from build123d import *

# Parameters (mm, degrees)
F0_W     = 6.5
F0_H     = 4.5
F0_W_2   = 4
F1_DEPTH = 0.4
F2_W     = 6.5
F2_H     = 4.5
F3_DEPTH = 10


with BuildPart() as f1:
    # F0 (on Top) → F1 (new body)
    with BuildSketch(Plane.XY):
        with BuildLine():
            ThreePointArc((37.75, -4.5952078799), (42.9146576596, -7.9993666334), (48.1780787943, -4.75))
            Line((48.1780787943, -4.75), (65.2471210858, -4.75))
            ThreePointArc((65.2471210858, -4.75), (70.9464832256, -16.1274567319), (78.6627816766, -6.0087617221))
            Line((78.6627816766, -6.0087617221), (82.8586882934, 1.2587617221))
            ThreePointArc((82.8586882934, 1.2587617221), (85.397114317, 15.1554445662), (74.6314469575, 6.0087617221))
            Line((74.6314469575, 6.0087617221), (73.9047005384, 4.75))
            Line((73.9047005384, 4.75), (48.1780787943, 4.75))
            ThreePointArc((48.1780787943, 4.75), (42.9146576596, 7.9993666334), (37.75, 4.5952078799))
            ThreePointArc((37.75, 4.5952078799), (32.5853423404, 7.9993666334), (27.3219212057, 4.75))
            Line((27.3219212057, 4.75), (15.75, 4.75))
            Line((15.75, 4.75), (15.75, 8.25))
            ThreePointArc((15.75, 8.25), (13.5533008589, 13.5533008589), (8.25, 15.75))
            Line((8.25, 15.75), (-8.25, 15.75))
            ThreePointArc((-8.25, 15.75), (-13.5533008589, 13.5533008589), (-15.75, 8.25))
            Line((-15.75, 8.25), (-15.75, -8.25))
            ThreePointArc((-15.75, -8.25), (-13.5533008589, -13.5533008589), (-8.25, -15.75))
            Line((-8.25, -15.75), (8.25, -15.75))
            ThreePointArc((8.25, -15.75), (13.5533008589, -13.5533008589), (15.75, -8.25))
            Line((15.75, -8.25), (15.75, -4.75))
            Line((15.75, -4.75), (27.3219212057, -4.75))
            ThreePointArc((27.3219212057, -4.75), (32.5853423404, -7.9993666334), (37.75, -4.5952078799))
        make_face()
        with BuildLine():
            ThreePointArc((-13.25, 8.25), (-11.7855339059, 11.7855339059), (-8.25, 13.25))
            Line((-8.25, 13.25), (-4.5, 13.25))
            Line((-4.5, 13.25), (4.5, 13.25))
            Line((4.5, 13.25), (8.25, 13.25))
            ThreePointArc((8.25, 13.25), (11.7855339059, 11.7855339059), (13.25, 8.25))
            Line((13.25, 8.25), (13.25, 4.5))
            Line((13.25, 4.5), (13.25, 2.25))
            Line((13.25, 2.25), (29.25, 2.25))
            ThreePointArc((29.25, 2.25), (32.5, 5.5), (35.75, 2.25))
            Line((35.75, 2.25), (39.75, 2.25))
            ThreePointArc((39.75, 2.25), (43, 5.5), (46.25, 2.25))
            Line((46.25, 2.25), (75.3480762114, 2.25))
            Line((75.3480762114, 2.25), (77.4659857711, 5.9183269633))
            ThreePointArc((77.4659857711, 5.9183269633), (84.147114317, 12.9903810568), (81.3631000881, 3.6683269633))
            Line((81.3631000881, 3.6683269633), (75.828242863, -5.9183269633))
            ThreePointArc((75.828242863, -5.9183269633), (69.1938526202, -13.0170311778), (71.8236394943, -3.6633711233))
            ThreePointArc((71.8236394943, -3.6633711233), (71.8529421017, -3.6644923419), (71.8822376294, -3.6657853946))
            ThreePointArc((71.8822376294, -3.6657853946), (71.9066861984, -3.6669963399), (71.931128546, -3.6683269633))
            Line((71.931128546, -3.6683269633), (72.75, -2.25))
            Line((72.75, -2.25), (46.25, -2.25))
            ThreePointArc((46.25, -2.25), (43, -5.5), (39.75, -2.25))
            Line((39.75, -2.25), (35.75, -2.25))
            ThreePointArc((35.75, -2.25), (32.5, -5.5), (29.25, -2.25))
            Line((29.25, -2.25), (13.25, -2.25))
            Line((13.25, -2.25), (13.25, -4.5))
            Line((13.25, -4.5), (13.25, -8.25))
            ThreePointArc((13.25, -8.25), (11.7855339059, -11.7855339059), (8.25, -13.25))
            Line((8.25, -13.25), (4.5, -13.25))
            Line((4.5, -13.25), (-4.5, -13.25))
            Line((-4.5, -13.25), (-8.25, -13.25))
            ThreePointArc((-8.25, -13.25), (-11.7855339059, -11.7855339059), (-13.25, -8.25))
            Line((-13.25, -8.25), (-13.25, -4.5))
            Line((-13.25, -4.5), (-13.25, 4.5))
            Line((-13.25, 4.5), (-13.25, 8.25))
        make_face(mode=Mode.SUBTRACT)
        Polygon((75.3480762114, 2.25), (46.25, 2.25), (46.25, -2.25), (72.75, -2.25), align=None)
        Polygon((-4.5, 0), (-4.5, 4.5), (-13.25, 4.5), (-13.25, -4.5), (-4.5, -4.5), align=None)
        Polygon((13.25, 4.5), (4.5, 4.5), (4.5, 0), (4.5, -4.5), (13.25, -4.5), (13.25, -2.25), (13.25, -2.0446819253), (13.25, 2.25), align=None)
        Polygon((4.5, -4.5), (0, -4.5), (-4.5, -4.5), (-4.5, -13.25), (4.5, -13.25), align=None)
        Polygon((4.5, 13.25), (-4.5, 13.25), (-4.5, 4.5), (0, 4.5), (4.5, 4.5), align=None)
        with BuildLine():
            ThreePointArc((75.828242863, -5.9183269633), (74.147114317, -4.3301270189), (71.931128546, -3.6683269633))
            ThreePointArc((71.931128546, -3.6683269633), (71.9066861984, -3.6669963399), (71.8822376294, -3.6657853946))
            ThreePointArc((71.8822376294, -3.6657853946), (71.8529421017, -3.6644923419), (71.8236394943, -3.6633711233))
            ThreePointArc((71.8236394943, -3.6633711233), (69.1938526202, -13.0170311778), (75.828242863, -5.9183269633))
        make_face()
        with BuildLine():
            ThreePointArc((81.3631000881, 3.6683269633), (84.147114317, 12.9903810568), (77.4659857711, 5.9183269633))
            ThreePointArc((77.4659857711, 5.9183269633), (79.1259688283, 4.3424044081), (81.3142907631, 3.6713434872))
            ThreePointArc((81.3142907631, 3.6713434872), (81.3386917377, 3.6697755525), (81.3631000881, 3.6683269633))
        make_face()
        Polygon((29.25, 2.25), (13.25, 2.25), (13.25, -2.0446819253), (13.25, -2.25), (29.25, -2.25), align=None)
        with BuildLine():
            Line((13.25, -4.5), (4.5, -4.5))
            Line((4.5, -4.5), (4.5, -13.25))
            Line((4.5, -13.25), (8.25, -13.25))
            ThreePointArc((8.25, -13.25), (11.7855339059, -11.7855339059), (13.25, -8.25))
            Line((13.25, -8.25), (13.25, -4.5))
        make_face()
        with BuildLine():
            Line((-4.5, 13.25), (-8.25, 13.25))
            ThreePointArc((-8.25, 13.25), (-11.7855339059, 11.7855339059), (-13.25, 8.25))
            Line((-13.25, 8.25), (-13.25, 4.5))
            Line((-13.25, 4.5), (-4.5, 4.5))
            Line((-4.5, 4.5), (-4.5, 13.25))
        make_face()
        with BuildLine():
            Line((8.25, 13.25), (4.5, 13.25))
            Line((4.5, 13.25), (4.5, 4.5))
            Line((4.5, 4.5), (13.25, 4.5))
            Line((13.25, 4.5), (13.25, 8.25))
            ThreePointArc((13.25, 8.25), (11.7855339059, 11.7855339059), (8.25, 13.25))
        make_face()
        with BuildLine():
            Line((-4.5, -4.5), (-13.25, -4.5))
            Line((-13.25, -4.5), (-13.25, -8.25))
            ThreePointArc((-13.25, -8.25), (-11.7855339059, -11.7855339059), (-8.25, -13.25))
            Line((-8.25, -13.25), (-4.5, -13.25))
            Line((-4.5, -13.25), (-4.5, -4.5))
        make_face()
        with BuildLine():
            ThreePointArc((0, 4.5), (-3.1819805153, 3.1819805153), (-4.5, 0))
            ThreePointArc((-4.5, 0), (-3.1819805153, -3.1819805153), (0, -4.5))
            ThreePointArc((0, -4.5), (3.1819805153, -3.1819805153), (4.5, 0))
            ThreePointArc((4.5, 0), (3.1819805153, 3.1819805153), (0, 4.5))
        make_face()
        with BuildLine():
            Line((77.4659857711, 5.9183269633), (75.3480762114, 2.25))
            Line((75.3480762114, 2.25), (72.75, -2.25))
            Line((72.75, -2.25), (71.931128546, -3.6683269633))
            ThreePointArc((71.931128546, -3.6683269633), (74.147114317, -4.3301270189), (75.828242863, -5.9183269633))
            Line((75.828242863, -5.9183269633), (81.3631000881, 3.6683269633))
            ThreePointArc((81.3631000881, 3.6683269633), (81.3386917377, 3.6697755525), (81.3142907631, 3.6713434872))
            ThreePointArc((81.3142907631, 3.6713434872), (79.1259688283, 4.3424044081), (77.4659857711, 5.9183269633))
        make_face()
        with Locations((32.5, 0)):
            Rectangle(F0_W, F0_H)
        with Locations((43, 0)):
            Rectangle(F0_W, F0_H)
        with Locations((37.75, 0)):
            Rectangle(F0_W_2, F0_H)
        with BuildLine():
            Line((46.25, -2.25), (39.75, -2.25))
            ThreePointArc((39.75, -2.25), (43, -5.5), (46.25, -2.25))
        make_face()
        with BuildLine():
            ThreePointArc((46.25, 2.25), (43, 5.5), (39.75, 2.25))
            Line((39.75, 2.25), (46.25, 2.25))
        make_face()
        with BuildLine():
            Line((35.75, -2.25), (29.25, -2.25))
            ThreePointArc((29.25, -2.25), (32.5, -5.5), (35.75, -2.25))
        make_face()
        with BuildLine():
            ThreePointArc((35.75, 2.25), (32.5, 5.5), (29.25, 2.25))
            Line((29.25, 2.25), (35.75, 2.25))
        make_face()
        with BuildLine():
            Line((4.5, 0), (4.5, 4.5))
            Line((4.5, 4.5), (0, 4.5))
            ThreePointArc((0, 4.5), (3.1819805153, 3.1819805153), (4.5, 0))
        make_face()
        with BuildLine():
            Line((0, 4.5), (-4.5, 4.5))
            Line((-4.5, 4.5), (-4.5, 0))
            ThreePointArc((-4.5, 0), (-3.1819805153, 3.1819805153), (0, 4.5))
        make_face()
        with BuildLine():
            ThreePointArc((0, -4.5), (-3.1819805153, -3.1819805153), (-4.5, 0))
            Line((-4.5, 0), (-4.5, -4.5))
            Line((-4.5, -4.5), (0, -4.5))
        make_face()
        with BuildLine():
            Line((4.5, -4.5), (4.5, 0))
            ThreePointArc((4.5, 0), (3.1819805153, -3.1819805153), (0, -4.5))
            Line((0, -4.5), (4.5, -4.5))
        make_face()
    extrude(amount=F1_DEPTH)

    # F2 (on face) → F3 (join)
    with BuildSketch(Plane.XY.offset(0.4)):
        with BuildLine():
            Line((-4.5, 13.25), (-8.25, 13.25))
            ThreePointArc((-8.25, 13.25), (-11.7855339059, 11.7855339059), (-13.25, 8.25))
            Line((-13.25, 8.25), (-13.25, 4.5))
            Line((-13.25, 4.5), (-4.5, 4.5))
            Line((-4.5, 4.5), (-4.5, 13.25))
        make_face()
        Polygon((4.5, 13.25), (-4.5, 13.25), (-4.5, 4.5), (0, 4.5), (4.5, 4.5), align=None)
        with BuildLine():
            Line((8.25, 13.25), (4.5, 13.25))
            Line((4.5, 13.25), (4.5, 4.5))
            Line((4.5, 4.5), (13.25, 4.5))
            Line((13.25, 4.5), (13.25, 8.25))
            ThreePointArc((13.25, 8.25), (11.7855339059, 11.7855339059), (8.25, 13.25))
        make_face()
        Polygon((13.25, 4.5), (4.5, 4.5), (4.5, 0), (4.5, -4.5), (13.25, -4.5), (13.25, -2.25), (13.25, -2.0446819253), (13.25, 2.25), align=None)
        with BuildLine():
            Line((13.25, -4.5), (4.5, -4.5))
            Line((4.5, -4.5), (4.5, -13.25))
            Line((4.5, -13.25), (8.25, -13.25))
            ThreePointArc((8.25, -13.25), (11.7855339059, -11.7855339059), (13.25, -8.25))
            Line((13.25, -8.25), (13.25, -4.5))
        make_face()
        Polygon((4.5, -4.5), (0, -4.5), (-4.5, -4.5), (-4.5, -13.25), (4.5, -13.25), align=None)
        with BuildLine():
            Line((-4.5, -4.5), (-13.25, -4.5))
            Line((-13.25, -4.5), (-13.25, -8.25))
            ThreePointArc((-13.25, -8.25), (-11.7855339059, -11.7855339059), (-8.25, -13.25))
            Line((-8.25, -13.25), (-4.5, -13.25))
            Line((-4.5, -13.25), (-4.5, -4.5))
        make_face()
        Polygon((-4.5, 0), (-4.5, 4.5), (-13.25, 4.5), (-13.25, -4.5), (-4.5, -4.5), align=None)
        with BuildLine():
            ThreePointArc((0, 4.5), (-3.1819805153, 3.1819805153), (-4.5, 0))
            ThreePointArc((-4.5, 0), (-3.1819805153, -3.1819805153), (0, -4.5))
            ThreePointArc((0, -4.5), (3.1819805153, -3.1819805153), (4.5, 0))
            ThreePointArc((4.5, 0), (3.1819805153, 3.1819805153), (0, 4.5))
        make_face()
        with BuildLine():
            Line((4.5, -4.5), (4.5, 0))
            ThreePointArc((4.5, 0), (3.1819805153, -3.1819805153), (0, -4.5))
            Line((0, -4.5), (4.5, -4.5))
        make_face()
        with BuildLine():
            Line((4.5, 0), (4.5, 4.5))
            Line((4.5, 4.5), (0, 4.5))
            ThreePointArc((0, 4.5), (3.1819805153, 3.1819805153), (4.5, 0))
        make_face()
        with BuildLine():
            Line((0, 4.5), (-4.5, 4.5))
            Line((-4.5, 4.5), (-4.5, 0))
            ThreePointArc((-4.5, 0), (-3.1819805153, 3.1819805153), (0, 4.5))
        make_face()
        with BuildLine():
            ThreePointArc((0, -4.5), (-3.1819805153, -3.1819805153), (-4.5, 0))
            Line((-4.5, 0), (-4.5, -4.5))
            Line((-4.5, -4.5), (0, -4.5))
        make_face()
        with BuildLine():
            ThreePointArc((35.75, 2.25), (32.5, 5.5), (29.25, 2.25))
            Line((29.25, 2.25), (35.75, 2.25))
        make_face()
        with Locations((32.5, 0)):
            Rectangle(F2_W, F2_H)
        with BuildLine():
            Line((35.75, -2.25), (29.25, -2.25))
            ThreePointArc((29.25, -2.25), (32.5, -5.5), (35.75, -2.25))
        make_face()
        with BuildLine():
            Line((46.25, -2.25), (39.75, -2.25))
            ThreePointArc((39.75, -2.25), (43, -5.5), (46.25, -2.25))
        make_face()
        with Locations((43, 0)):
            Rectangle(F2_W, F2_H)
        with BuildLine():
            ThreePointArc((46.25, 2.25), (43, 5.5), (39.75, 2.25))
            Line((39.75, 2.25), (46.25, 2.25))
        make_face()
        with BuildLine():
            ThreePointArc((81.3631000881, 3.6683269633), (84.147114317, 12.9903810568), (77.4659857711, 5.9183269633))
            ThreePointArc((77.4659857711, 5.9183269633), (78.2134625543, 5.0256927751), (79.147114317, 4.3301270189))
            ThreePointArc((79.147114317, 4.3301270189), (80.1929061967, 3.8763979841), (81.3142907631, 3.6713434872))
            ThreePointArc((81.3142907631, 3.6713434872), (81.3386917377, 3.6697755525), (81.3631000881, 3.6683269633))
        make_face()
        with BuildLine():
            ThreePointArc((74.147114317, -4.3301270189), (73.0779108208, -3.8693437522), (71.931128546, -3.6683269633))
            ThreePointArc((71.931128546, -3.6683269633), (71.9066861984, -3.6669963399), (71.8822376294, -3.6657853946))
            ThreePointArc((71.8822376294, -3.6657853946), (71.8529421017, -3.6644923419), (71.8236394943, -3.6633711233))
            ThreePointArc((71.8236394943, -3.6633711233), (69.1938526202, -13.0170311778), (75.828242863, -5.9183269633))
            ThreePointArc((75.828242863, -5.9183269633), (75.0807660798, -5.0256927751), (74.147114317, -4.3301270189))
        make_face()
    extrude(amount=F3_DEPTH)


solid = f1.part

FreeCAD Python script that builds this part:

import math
import FreeCAD as App
import Part
import Sketcher

V = App.Vector
Q = App.Units.Quantity

doc = App.newDocument("Part")
body = doc.addObject("PartDesign::Body", "Body")

sketch1 = body.newObject("Sketcher::SketchObject", "Sketch")
sketch1.AttachmentSupport = (doc.getObject("XY_Plane"), [""])
sketch1.MapMode = "FlatFace"
sketch1.addGeometry(Part.ArcOfCircle(Part.Circle(V(43, -2.2, 0), V(0, 0, 1), 5.8), math.radians(-156), math.radians(-26)), False)
sketch1.addGeometry(Part.LineSegment(V(48.2, -4.8, 0), V(65.2, -4.8, 0)), False)
sketch1.addGeometry(Part.ArcOfCircle(Part.Circle(V(71.6, -8.7, 0), V(0, 0, 1), 7.5), math.radians(149), math.radians(381)), False)
sketch1.addGeometry(Part.LineSegment(V(78.7, -6, 0), V(82.9, 1.3, 0)), False)
sketch1.addGeometry(Part.ArcOfCircle(Part.Circle(V(81.6, 8.7, 0), V(0, 0, 1), 7.5), math.radians(-81), math.radians(201)), False)
sketch1.addGeometry(Part.LineSegment(V(74.6, 6, 0), V(73.9, 4.8, 0)), False)
sketch1.addGeometry(Part.LineSegment(V(73.9, 4.8, 0), V(48.2, 4.8, 0)), False)
sketch1.addGeometry(Part.ArcOfCircle(Part.Circle(V(43, 2.2, 0), V(0, 0, 1), 5.8), math.radians(26), math.radians(156)), False)
sketch1.addGeometry(Part.ArcOfCircle(Part.Circle(V(32.5, 2.2, 0), V(0, 0, 1), 5.8), math.radians(24), math.radians(154)), False)
sketch1.addGeometry(Part.LineSegment(V(27.3, 4.8, 0), V(15.8, 4.8, 0)), False)
sketch1.addGeometry(Part.LineSegment(V(15.8, 4.8, 0), V(15.8, 8.2, 0)), False)
sketch1.addGeometry(Part.ArcOfCircle(Part.Circle(V(8.2, 8.2, 0), V(0, 0, 1), 7.5), math.radians(0), math.radians(90)), False)
sketch1.addGeometry(Part.LineSegment(V(8.2, 15.8, 0), V(-8.2, 15.8, 0)), False)
sketch1.addGeometry(Part.ArcOfCircle(Part.Circle(V(-8.2, 8.2, 0), V(0, 0, 1), 7.5), math.radians(90), math.radians(180)), False)
sketch1.addGeometry(Part.LineSegment(V(-15.8, 8.2, 0), V(-15.8, -8.2, 0)), False)
sketch1.addGeometry(Part.ArcOfCircle(Part.Circle(V(-8.2, -8.2, 0), V(0, 0, 1), 7.5), math.radians(180), math.radians(270)), False)
sketch1.addGeometry(Part.LineSegment(V(-8.2, -15.8, 0), V(8.2, -15.8, 0)), False)
sketch1.addGeometry(Part.ArcOfCircle(Part.Circle(V(8.2, -8.2, 0), V(0, 0, 1), 7.5), math.radians(-90), math.radians(0)), False)
sketch1.addGeometry(Part.LineSegment(V(15.8, -8.2, 0), V(15.8, -4.8, 0)), False)
sketch1.addGeometry(Part.LineSegment(V(15.8, -4.8, 0), V(27.3, -4.8, 0)), False)
sketch1.addGeometry(Part.ArcOfCircle(Part.Circle(V(32.5, -2.2, 0), V(0, 0, 1), 5.8), math.radians(-154), math.radians(-24)), False)
sketch1.addConstraint(Sketcher.Constraint("Coincident", 0, 2, 1, 1))
sketch1.addConstraint(Sketcher.Constraint("Coincident", 1, 2, 2, 1))
sketch1.addConstraint(Sketcher.Constraint("Coincident", 2, 2, 3, 1))
sketch1.addConstraint(Sketcher.Constraint("Coincident", 3, 2, 4, 1))
sketch1.addConstraint(Sketcher.Constraint("Coincident", 4, 2, 5, 1))
sketch1.addConstraint(Sketcher.Constraint("Coincident", 5, 2, 6, 1))
sketch1.addConstraint(Sketcher.Constraint("Coincident", 6, 2, 7, 1))
sketch1.addConstraint(Sketcher.Constraint("Coincident", 7, 2, 8, 1))
sketch1.addConstraint(Sketcher.Constraint("Coincident", 8, 2, 9, 1))
sketch1.addConstraint(Sketcher.Constraint("Coincident", 9, 2, 10, 1))
sketch1.addConstraint(Sketcher.Constraint("Tangent", 10, 2, 11, 1))
sketch1.addConstraint(Sketcher.Constraint("Tangent", 11, 2, 12, 1))
sketch1.addConstraint(Sketcher.Constraint("Tangent", 12, 2, 13, 1))
sketch1.addConstraint(Sketcher.Constraint("Tangent", 13, 2, 14, 1))
sketch1.addConstraint(Sketcher.Constraint("Tangent", 14, 2, 15, 1))
sketch1.addConstraint(Sketcher.Constraint("Tangent", 15, 2, 16, 1))
sketch1.addConstraint(Sketcher.Constraint("Tangent", 16, 2, 17, 1))
sketch1.addConstraint(Sketcher.Constraint("Tangent", 17, 2, 18, 1))
sketch1.addConstraint(Sketcher.Constraint("Coincident", 18, 2, 19, 1))
sketch1.addConstraint(Sketcher.Constraint("Coincident", 19, 2, 20, 1))
sketch1.addConstraint(Sketcher.Constraint("Coincident", 20, 2, 0, 1))
sketch1.addConstraint(Sketcher.Constraint("Horizontal", 1))
sketch1.addConstraint(Sketcher.Constraint("Horizontal", 6))
sketch1.addConstraint(Sketcher.Constraint("Horizontal", 9))
sketch1.addConstraint(Sketcher.Constraint("Vertical", 10))
sketch1.addConstraint(Sketcher.Constraint("Horizontal", 12))
sketch1.addConstraint(Sketcher.Constraint("Vertical", 14))
sketch1.addConstraint(Sketcher.Constraint("Horizontal", 16))
sketch1.addConstraint(Sketcher.Constraint("Vertical", 18))
sketch1.addConstraint(Sketcher.Constraint("Horizontal", 19))
sketch1.addConstraint(Sketcher.Constraint("Equal", 2, 4))
sketch1.addConstraint(Sketcher.Constraint("Equal", 0, 7))
sketch1.addConstraint(Sketcher.Constraint("Equal", 7, 8))
sketch1.addConstraint(Sketcher.Constraint("Equal", 4, 11))
sketch1.addConstraint(Sketcher.Constraint("Equal", 11, 13))
sketch1.addConstraint(Sketcher.Constraint("Equal", 13, 15))
sketch1.addConstraint(Sketcher.Constraint("Equal", 15, 17))
sketch1.addConstraint(Sketcher.Constraint("Equal", 8, 20))
sketch1.addConstraint(Sketcher.Constraint("Symmetric", 11, 3, 15, 3, -1, 1))
sketch1.addConstraint(Sketcher.Constraint("Symmetric", 0, 3, 7, 3, -1))
sketch1.addConstraint(Sketcher.Constraint("Symmetric", 8, 3, 20, 3, -1))
sketch1.addConstraint(Sketcher.Constraint("Symmetric", 9, 2, 18, 2, -1))
sketch1.addConstraint(Sketcher.Constraint("Parallel", 3, 5))
sketch1.addConstraint(Sketcher.Constraint("Horizontal", 7, 3, 8, 3))
sketch1.addConstraint(Sketcher.Constraint("Horizontal", 6, 2, 8, 2))
sketch1.addConstraint(Sketcher.Constraint("Horizontal", 1, 2, 18, 2))
sketch1.addConstraint(Sketcher.Constraint("Equal", 16, 14))
sketch1.addConstraint(Sketcher.Constraint("Radius", 2, 7.5))
sketch1.addConstraint(Sketcher.Constraint("Angle", 3, Q("60 deg")))
sketch1.addConstraint(Sketcher.Constraint("Radius", 0, 5.75))
sketch1.addConstraint(Sketcher.Constraint("DistanceX", 12, 2, 12, 1, 16.5))
sketch1.addConstraint(Sketcher.Constraint("DistanceY", 10, 1, 10, 2, 3.5))
sketch1.addConstraint(Sketcher.Constraint("DistanceX", -1, 1, 0, 3, 43.0))
sketch1.addConstraint(Sketcher.Constraint("DistanceX", 2, 3, 4, 3, 10.0))
sketch1.addConstraint(Sketcher.Constraint("DistanceY", 8, 3, 11, 3, 6.0))
sketch1.addConstraint(Sketcher.Constraint("DistanceX", -1, 1, 8, 3, 32.5))
sketch1.addConstraint(Sketcher.Constraint("DistanceY", 3, 2, 4, 2, 4.75))
sketch1.addConstraint(Sketcher.Constraint("DistanceX", 6, 2, 6, 1, 25.726622))
sketch1.addConstraint(Sketcher.Constraint("DistanceX", 1, 1, 1, 2, 17.069042))
sketch1.addConstraint(Sketcher.Constraint("DistanceX", -1, 1, 2, 2, 78.662782))
sketch1.addConstraint(Sketcher.Constraint("DistanceY", 2, 2, -1, 1, 6.008762))
pad1 = body.newObject("PartDesign::Pad", "Pad")
pad1.Profile = sketch1
pad1.Length = 0.4

sketch2 = body.newObject("Sketcher::SketchObject", "Sketch001")
sketch2.AttachmentSupport = (doc.getObject("XY_Plane"), [""])
sketch2.MapMode = "FlatFace"
sketch2.AttachmentOffset = App.Placement(V(0, 0, 0.4), App.Rotation())
sketch2.addGeometry(Part.ArcOfCircle(Part.Circle(V(-8.25, 8.25, 0), V(0, 0, 1), 5), math.radians(90), math.radians(180)), False)
sketch2.addGeometry(Part.LineSegment(V(-13.25, 8.25, 0), V(-13.25, -8.25, 0)), False)
sketch2.addGeometry(Part.ArcOfCircle(Part.Circle(V(-8.25, -8.25, 0), V(0, 0, 1), 5), math.radians(180), math.radians(270)), False)
sketch2.addGeometry(Part.LineSegment(V(-8.25, -13.25, 0), V(8.25, -13.25, 0)), False)
sketch2.addGeometry(Part.ArcOfCircle(Part.Circle(V(8.25, -8.25, 0), V(0, 0, 1), 5), math.radians(-90), math.radians(0)), False)
sketch2.addGeometry(Part.LineSegment(V(13.25, -8.25, 0), V(13.25, 8.25, 0)), False)
sketch2.addGeometry(Part.ArcOfCircle(Part.Circle(V(8.25, 8.25, 0), V(0, 0, 1), 5), math.radians(0), math.radians(90)), False)
sketch2.addGeometry(Part.LineSegment(V(8.25, 13.25, 0), V(-8.25, 13.25, 0)), False)
sketch2.addGeometry(Part.ArcOfCircle(Part.Circle(V(32.5, 2.25, 0), V(0, 0, 1), 3.25), math.radians(0), math.radians(180)), False)
sketch2.addGeometry(Part.LineSegment(V(29.25, 2.25, 0), V(29.25, -2.25, 0)), False)
sketch2.addGeometry(Part.ArcOfCircle(Part.Circle(V(32.5, -2.25, 0), V(0, 0, 1), 3.25), math.radians(180), math.radians(360)), False)
sketch2.addGeometry(Part.LineSegment(V(35.75, -2.25, 0), V(35.75, 2.25, 0)), False)
sketch2.addGeometry(Part.ArcOfCircle(Part.Circle(V(43, -2.25, 0), V(0, 0, 1), 3.25), math.radians(180), math.radians(360)), False)
sketch2.addGeometry(Part.LineSegment(V(46.25, -2.25, 0), V(46.25, 2.25, 0)), False)
sketch2.addGeometry(Part.ArcOfCircle(Part.Circle(V(43, 2.25, 0), V(0, 0, 1), 3.25), math.radians(0), math.radians(180)), False)
sketch2.addGeometry(Part.LineSegment(V(39.75, 2.25, 0), V(39.75, -2.25, 0)), False)
sketch2.addGeometry(Part.ArcOfCircle(Part.Circle(V(81.647, 8.66, 0), V(0, 0, 1), 5), math.radians(-93), math.radians(213)), False)
sketch2.addGeometry(Part.ArcOfCircle(Part.Circle(V(81.647, 8.66, 0), V(0, 0, 1), 5), math.radians(-147), math.radians(-120)), False)
sketch2.addGeometry(Part.ArcOfCircle(Part.Circle(V(81.647, 8.66, 0), V(0, 0, 1), 5), math.radians(-120), math.radians(-94)), False)
sketch2.addGeometry(Part.ArcOfCircle(Part.Circle(V(81.647, 8.66, 0), V(0, 0, 1), 5), math.radians(-93.82), math.radians(-93.26)), False)
sketch2.addGeometry(Part.ArcOfCircle(Part.Circle(V(71.647, -8.66, 0), V(0, 0, 1), 5), math.radians(60), math.radians(87)), False)
sketch2.addGeometry(Part.ArcOfCircle(Part.Circle(V(71.647, -8.66, 0), V(0, 0, 1), 5), math.radians(86.74), math.radians(87.3)), False)
sketch2.addGeometry(Part.ArcOfCircle(Part.Circle(V(71.647, -8.66, 0), V(0, 0, 1), 5), math.radians(87.3), math.radians(87.98)), False)
sketch2.addGeometry(Part.ArcOfCircle(Part.Circle(V(71.647, -8.66, 0), V(0, 0, 1), 5), math.radians(88), math.radians(393)), False)
sketch2.addGeometry(Part.ArcOfCircle(Part.Circle(V(71.647, -8.66, 0), V(0, 0, 1), 5), math.radians(33), math.radians(60)), False)
sketch2.addConstraint(Sketcher.Constraint("Tangent", 0, 2, 1, 1))
sketch2.addConstraint(Sketcher.Constraint("Tangent", 1, 2, 2, 1))
sketch2.addConstraint(Sketcher.Constraint("Tangent", 2, 2, 3, 1))
sketch2.addConstraint(Sketcher.Constraint("Tangent", 3, 2, 4, 1))
sketch2.addConstraint(Sketcher.Constraint("Tangent", 4, 2, 5, 1))
sketch2.addConstraint(Sketcher.Constraint("Tangent", 5, 2, 6, 1))
sketch2.addConstraint(Sketcher.Constraint("Tangent", 6, 2, 7, 1))
sketch2.addConstraint(Sketcher.Constraint("Tangent", 7, 2, 0, 1))
sketch2.addConstraint(Sketcher.Constraint("Tangent", 8, 2, 9, 1))
sketch2.addConstraint(Sketcher.Constraint("Tangent", 9, 2, 10, 1))
sketch2.addConstraint(Sketcher.Constraint("Tangent", 10, 2, 11, 1))
sketch2.addConstraint(Sketcher.Constraint("Tangent", 11, 2, 8, 1))
sketch2.addConstraint(Sketcher.Constraint("Tangent", 12, 2, 13, 1))
sketch2.addConstraint(Sketcher.Constraint("Tangent", 13, 2, 14, 1))
sketch2.addConstraint(Sketcher.Constraint("Tangent", 14, 2, 15, 1))
sketch2.addConstraint(Sketcher.Constraint("Tangent", 15, 2, 12, 1))
sketch2.addConstraint(Sketcher.Constraint("Tangent", 16, 2, 17, 1))
sketch2.addConstraint(Sketcher.Constraint("Tangent", 17, 2, 18, 1))
sketch2.addConstraint(Sketcher.Constraint("Tangent", 18, 2, 19, 1))
sketch2.addConstraint(Sketcher.Constraint("Tangent", 19, 2, 16, 1))
sketch2.addConstraint(Sketcher.Constraint("Tangent", 20, 2, 21, 1))
sketch2.addConstraint(Sketcher.Constraint("Tangent", 21, 2, 22, 1))
sketch2.addConstraint(Sketcher.Constraint("Tangent", 22, 2, 23, 1))
sketch2.addConstraint(Sketcher.Constraint("Tangent", 23, 2, 24, 1))
sketch2.addConstraint(Sketcher.Constraint("Tangent", 24, 2, 20, 1))
sketch2.addConstraint(Sketcher.Constraint("Vertical", 1))
sketch2.addConstraint(Sketcher.Constraint("Horizontal", 3))
sketch2.addConstraint(Sketcher.Constraint("Vertical", 5))
sketch2.addConstraint(Sketcher.Constraint("Horizontal", 7))
sketch2.addConstraint(Sketcher.Constraint("Vertical", 9))
sketch2.addConstraint(Sketcher.Constraint("Vertical", 11))
sketch2.addConstraint(Sketcher.Constraint("Vertical", 13))
sketch2.addConstraint(Sketcher.Constraint("Vertical", 15))
sketch2.addConstraint(Sketcher.Constraint("Coincident", 22, 3, 20, 3))
sketch2.addConstraint(Sketcher.Constraint("Equal", 0, 2))
sketch2.addConstraint(Sketcher.Constraint("Equal", 2, 4))
sketch2.addConstraint(Sketcher.Constraint("Equal", 4, 6))
sketch2.addConstraint(Sketcher.Constraint("Equal", 10, 12))
sketch2.addConstraint(Sketcher.Constraint("Equal", 6, 16))
sketch2.addConstraint(Sketcher.Constraint("Equal", 16, 17))
sketch2.addConstraint(Sketcher.Constraint("Equal", 19, 20))
sketch2.addConstraint(Sketcher.Constraint("Symmetric", 0, 3, 4, 3, -1, 1))
sketch2.addConstraint(Sketcher.Constraint("Horizontal", 10, 3, 12, 3))
sketch2.addConstraint(Sketcher.Constraint("Horizontal", 8, 3, 14, 3))
sketch2.addConstraint(Sketcher.Constraint("Equal", 7, 1))
sketch2.addConstraint(Sketcher.Constraint("Radius", 0, 5.0))
sketch2.addConstraint(Sketcher.Constraint("Radius", 8, 3.25))
sketch2.addConstraint(Sketcher.Constraint("DistanceX", 3, 1, 3, 2, 16.5))
sketch2.addConstraint(Sketcher.Constraint("DistanceY", 9, 2, 9, 1, 4.5))
sketch2.addConstraint(Sketcher.Constraint("DistanceX", -1, 1, 12, 3, 43.0))
sketch2.addConstraint(Sketcher.Constraint("DistanceY", 8, 3, 6, 3, 6.0))
sketch2.addConstraint(Sketcher.Constraint("DistanceX", 20, 3, 19, 3, 10.0))
sketch2.addConstraint(Sketcher.Constraint("DistanceX", 5, 2, 8, 2, 16.0))
sketch2.addConstraint(Sketcher.Constraint("DistanceX", 17, 2, 19, 3, 2.5))
sketch2.addConstraint(Sketcher.Constraint("DistanceX", 24, 3, 24, 2, 2.5))
sketch2.addConstraint(Sketcher.Constraint("DistanceY", 19, 2, 16, 2, 2.25))
sketch2.addConstraint(Sketcher.Constraint("DistanceY", 23, 2, 20, 2, 2.25))
sketch2.addConstraint(Sketcher.Constraint("DistanceX", -1, 1, 19, 2, 81.3631))
sketch2.addConstraint(Sketcher.Constraint("DistanceY", 17, 2, 16, 2, 1.5882))
sketch2.addConstraint(Sketcher.Constraint("DistanceX", 22, 2, 21, 2, 0.058598))
sketch2.addConstraint(Sketcher.Constraint("DistanceY", 23, 2, 24, 2, 1.5882))
sketch2.addConstraint(Sketcher.Constraint("DistanceX", -1, 1, 18, 2, 81.314291))
sketch2.addConstraint(Sketcher.Constraint("DistanceX", -1, 1, 22, 2, 71.823639))
sketch2.addConstraint(Sketcher.Constraint("DistanceY", 22, 2, -1, 1, 3.663371))
sketch2.addConstraint(Sketcher.Constraint("DistanceY", 20, 3, 17, 3, 17.320508))
pad2 = body.newObject("PartDesign::Pad", "Pad001")
pad2.Profile = sketch2
pad2.Length = 10

doc.recompute()
